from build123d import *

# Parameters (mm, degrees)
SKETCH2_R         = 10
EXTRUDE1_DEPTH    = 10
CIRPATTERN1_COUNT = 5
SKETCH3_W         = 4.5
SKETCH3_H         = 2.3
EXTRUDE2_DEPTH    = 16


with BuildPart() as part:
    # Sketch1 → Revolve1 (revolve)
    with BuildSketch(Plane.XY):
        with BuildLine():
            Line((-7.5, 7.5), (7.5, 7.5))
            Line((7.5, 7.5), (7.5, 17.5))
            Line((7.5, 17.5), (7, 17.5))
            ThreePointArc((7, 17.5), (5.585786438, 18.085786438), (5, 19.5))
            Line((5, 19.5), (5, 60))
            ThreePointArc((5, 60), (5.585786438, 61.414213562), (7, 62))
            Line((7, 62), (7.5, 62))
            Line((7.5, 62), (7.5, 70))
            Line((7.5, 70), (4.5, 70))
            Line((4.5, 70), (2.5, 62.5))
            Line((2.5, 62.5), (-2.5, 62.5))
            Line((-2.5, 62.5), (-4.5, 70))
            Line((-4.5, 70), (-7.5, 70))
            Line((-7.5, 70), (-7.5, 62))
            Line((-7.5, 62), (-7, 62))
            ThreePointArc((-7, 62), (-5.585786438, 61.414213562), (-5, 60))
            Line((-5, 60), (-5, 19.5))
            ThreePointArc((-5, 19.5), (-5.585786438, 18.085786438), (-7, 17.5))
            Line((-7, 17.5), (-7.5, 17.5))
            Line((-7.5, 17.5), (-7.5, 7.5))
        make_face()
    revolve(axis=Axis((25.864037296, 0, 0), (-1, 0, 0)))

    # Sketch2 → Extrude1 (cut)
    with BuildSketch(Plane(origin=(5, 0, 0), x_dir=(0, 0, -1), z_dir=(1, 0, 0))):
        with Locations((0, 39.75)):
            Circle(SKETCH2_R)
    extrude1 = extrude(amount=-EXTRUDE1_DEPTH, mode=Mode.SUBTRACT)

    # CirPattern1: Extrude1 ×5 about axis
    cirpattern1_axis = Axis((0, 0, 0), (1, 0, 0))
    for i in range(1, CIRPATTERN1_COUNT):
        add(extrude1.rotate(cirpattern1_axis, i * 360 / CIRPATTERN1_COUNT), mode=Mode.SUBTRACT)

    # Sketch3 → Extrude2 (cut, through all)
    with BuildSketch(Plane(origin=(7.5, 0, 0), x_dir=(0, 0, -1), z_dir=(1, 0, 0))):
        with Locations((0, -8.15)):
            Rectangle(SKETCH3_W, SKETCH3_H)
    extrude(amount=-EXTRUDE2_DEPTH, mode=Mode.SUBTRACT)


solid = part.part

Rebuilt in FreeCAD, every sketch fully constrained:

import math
import FreeCAD as App
import Part
import Sketcher
from FreeCAD import Vector

doc = App.newDocument("Part")
body = doc.addObject("PartDesign::Body", "Body")

sketch1 = body.newObject("Sketcher::SketchObject", "Sketch")
sketch1.AttachmentSupport = (doc.getObject("XY_Plane"), [""])
sketch1.MapMode = "FlatFace"
sketch1.addGeometry([
    Part.LineSegment(Vector(-7.5, 7.5, 0), Vector(7.5, 7.5, 0)),
    Part.LineSegment(Vector(7.5, 7.5, 0), Vector(7.5, 17.5, 0)),
    Part.LineSegment(Vector(7.5, 17.5, 0), Vector(7, 17.5, 0)),
    Part.ArcOfCircle(Part.Circle(Vector(7, 19.5, 0), Vector(0, 0, 1), 2), math.radians(-180), math.radians(-90)),
    Part.LineSegment(Vector(5, 19.5, 0), Vector(5, 60, 0)),
    Part.ArcOfCircle(Part.Circle(Vector(7, 60, 0), Vector(0, 0, 1), 2), math.radians(90), math.radians(180)),
    Part.LineSegment(Vector(7, 62, 0), Vector(7.5, 62, 0)),
    Part.LineSegment(Vector(7.5, 62, 0), Vector(7.5, 70, 0)),
    Part.LineSegment(Vector(7.5, 70, 0), Vector(4.5, 70, 0)),
    Part.LineSegment(Vector(4.5, 70, 0), Vector(2.5, 62.5, 0)),
    Part.LineSegment(Vector(2.5, 62.5, 0), Vector(-2.5, 62.5, 0)),
    Part.LineSegment(Vector(-2.5, 62.5, 0), Vector(-4.5, 70, 0)),
    Part.LineSegment(Vector(-4.5, 70, 0), Vector(-7.5, 70, 0)),
    Part.LineSegment(Vector(-7.5, 70, 0), Vector(-7.5, 62, 0)),
    Part.LineSegment(Vector(-7.5, 62, 0), Vector(-7, 62, 0)),
    Part.ArcOfCircle(Part.Circle(Vector(-7, 60, 0), Vector(0, 0, 1), 2), math.radians(0), math.radians(90)),
    Part.LineSegment(Vector(-5, 60, 0), Vector(-5, 19.5, 0)),
    Part.ArcOfCircle(Part.Circle(Vector(-7, 19.5, 0), Vector(0, 0, 1), 2), math.radians(-90), math.radians(0)),
    Part.LineSegment(Vector(-7, 17.5, 0), Vector(-7.5, 17.5, 0)),
    Part.LineSegment(Vector(-7.5, 17.5, 0), Vector(-7.5, 7.5, 0)),
], False)
sketch1.addConstraint([
    Sketcher.Constraint("Coincident", 0, 2, 1, 1),
    Sketcher.Constraint("Coincident", 1, 2, 2, 1),
    Sketcher.Constraint("Tangent", 2, 2, 3, 2),
    Sketcher.Constraint("Tangent", 3, 1, 4, 1),
    Sketcher.Constraint("Tangent", 4, 2, 5, 2),
    Sketcher.Constraint("Tangent", 5, 1, 6, 1),
    Sketcher.Constraint("Coincident", 6, 2, 7, 1),
    Sketcher.Constraint("Coincident", 7, 2, 8, 1),
    Sketcher.Constraint("Coincident", 8, 2, 9, 1),
    Sketcher.Constraint("Coincident", 9, 2, 10, 1),
    Sketcher.Constraint("Coincident", 10, 2, 11, 1),
    Sketcher.Constraint("Coincident", 11, 2, 12, 1),
    Sketcher.Constraint("Coincident", 12, 2, 13, 1),
    Sketcher.Constraint("Coincident", 13, 2, 14, 1),
    Sketcher.Constraint("Tangent", 14, 2, 15, 2),
    Sketcher.Constraint("Tangent", 15, 1, 16, 1),
    Sketcher.Constraint("Tangent", 16, 2, 17, 2),
    Sketcher.Constraint("Tangent", 17, 1, 18, 1),
    Sketcher.Constraint("Coincident", 18, 2, 19, 1),
    Sketcher.Constraint("Coincident", 19, 2, 0, 1),
    Sketcher.Constraint("Horizontal", 0),
    Sketcher.Constraint("Vertical", 1),
    Sketcher.Constraint("Horizontal", 2),
    Sketcher.Constraint("Vertical", 4),
    Sketcher.Constraint("Horizontal", 6),
    Sketcher.Constraint("Vertical", 7),
    Sketcher.Constraint("Horizontal", 8),
    Sketcher.Constraint("Horizontal", 10),
    Sketcher.Constraint("Horizontal", 12),
    Sketcher.Constraint("Vertical", 13),
    Sketcher.Constraint("Horizontal", 14),
    Sketcher.Constraint("Vertical", 16),
    Sketcher.Constraint("Horizontal", 18),
    Sketcher.Constraint("Vertical", 19),
    Sketcher.Constraint("Equal", 3, 5),
    Sketcher.Constraint("Equal", 5, 15),
    Sketcher.Constraint("Equal", 15, 17),
    Sketcher.Constraint("Symmetric", 5, 3, 15, 3, -2),
    Sketcher.Constraint("Symmetric", 8, 2, 11, 2, -2),
    Sketcher.Constraint("Symmetric", 1, 2, 18, 2, -2),
    Sketcher.Constraint("Vertical", 1, 2, 6, 2),
    Sketcher.Constraint("Vertical", 13, 2, 18, 2),
    Sketcher.Constraint("Equal", 9, 11),
    Sketcher.Constraint("Radius", 3, 2.0),
    Sketcher.Constraint("DistanceX", 0, 1, 0, 2, 15.0),
    Sketcher.Constraint("DistanceX", 8, 2, 8, 1, 3.0),
    Sketcher.Constraint("DistanceX", 10, 2, 10, 1, 5.0),
    Sketcher.Constraint("DistanceY", 1, 1, 1, 2, 10.0),
    Sketcher.Constraint("DistanceY", 7, 1, 7, 2, 8.0),
    Sketcher.Constraint("DistanceX", 2, 2, 2, 1, 0.5),
    Sketcher.Constraint("DistanceY", 4, 1, 4, 2, 40.5),
    Sketcher.Constraint("DistanceY", -1, 1, 5, 3, 60.0),
    Sketcher.Constraint("DistanceY", -1, 1, 9, 2, 62.5),
])
revolution = body.newObject("PartDesign::Revolution", "Revolution")
revolution.Profile = sketch1
revolution.ReferenceAxis = (sketch1, ["H_Axis"])
revolution.Angle = 360

sketch2 = body.newObject("Sketcher::SketchObject", "Sketch001")
sketch2.AttachmentSupport = (doc.getObject("YZ_Plane"), [""])
sketch2.MapMode = "FlatFace"
sketch2.AttachmentOffset = App.Placement(Vector(0, 0, 5), App.Rotation())
sketch2.addGeometry(Part.Circle(Vector(40, 0, 0), Vector(0, 0, 1), 10), False)
sketch2.addConstraint([
    Sketcher.Constraint("PointOnObject", 0, 3, -1),
    Sketcher.Constraint("Diameter", 0, 20.0),
    Sketcher.Constraint("DistanceX", -1, 1, 0, 3, 39.75),
])
pocket1 = body.newObject("PartDesign::Pocket", "Pocket")
pocket1.Profile = sketch2
pocket1.Length = 10
doc.recompute()

polarpattern = body.newObject("PartDesign::PolarPattern", "PolarPattern")
polarpattern.Originals = [pocket1]
polarpattern.Axis = (doc.getObject("X_Axis"), [""])
polarpattern.Angle = 360
polarpattern.Occurrences = 5
body.Tip = polarpattern

sketch3 = body.newObject("Sketcher::SketchObject", "Sketch002")
sketch3.AttachmentSupport = (doc.getObject("YZ_Plane"), [""])
sketch3.MapMode = "FlatFace"
sketch3.AttachmentOffset = App.Placement(Vector(0, 0, 7.5), App.Rotation())
sketch3.addGeometry([
    Part.LineSegment(Vector(-7, 2.2, 0), Vector(-9.3, 2.2, 0)),
    Part.LineSegment(Vector(-9.3, 2.2, 0), Vector(-9.3, -2.2, 0)),
    Part.LineSegment(Vector(-9.3, -2.2, 0), Vector(-7, -2.2, 0)),
    Part.LineSegment(Vector(-7, -2.2, 0), Vector(-7, 2.2, 0)),
], False)
sketch3.addConstraint([
    Sketcher.Constraint("Coincident", 0, 2, 1, 1),
    Sketcher.Constraint("Coincident", 1, 2, 2, 1),
    Sketcher.Constraint("Coincident", 2, 2, 3, 1),
    Sketcher.Constraint("Coincident", 3, 2, 0, 1),
    Sketcher.Constraint("Horizontal", 0),
    Sketcher.Constraint("Vertical", 1),
    Sketcher.Constraint("Horizontal", 2),
    Sketcher.Constraint("Vertical", 3),
    Sketcher.Constraint("DistanceX", 0, 2, 0, 1, 2.3),
    Sketcher.Constraint("DistanceY", 1, 2, 1, 1, 4.5),
    Sketcher.Constraint("DistanceX", 2, 2, -1, 1, 7.0),
    Sketcher.Constraint("DistanceY", -1, 1, 0, 2, 2.25),
])
pocket2 = body.newObject("PartDesign::Pocket", "Pocket001")
pocket2.Profile = sketch3
pocket2.Type = "ThroughAll"

doc.recompute()
